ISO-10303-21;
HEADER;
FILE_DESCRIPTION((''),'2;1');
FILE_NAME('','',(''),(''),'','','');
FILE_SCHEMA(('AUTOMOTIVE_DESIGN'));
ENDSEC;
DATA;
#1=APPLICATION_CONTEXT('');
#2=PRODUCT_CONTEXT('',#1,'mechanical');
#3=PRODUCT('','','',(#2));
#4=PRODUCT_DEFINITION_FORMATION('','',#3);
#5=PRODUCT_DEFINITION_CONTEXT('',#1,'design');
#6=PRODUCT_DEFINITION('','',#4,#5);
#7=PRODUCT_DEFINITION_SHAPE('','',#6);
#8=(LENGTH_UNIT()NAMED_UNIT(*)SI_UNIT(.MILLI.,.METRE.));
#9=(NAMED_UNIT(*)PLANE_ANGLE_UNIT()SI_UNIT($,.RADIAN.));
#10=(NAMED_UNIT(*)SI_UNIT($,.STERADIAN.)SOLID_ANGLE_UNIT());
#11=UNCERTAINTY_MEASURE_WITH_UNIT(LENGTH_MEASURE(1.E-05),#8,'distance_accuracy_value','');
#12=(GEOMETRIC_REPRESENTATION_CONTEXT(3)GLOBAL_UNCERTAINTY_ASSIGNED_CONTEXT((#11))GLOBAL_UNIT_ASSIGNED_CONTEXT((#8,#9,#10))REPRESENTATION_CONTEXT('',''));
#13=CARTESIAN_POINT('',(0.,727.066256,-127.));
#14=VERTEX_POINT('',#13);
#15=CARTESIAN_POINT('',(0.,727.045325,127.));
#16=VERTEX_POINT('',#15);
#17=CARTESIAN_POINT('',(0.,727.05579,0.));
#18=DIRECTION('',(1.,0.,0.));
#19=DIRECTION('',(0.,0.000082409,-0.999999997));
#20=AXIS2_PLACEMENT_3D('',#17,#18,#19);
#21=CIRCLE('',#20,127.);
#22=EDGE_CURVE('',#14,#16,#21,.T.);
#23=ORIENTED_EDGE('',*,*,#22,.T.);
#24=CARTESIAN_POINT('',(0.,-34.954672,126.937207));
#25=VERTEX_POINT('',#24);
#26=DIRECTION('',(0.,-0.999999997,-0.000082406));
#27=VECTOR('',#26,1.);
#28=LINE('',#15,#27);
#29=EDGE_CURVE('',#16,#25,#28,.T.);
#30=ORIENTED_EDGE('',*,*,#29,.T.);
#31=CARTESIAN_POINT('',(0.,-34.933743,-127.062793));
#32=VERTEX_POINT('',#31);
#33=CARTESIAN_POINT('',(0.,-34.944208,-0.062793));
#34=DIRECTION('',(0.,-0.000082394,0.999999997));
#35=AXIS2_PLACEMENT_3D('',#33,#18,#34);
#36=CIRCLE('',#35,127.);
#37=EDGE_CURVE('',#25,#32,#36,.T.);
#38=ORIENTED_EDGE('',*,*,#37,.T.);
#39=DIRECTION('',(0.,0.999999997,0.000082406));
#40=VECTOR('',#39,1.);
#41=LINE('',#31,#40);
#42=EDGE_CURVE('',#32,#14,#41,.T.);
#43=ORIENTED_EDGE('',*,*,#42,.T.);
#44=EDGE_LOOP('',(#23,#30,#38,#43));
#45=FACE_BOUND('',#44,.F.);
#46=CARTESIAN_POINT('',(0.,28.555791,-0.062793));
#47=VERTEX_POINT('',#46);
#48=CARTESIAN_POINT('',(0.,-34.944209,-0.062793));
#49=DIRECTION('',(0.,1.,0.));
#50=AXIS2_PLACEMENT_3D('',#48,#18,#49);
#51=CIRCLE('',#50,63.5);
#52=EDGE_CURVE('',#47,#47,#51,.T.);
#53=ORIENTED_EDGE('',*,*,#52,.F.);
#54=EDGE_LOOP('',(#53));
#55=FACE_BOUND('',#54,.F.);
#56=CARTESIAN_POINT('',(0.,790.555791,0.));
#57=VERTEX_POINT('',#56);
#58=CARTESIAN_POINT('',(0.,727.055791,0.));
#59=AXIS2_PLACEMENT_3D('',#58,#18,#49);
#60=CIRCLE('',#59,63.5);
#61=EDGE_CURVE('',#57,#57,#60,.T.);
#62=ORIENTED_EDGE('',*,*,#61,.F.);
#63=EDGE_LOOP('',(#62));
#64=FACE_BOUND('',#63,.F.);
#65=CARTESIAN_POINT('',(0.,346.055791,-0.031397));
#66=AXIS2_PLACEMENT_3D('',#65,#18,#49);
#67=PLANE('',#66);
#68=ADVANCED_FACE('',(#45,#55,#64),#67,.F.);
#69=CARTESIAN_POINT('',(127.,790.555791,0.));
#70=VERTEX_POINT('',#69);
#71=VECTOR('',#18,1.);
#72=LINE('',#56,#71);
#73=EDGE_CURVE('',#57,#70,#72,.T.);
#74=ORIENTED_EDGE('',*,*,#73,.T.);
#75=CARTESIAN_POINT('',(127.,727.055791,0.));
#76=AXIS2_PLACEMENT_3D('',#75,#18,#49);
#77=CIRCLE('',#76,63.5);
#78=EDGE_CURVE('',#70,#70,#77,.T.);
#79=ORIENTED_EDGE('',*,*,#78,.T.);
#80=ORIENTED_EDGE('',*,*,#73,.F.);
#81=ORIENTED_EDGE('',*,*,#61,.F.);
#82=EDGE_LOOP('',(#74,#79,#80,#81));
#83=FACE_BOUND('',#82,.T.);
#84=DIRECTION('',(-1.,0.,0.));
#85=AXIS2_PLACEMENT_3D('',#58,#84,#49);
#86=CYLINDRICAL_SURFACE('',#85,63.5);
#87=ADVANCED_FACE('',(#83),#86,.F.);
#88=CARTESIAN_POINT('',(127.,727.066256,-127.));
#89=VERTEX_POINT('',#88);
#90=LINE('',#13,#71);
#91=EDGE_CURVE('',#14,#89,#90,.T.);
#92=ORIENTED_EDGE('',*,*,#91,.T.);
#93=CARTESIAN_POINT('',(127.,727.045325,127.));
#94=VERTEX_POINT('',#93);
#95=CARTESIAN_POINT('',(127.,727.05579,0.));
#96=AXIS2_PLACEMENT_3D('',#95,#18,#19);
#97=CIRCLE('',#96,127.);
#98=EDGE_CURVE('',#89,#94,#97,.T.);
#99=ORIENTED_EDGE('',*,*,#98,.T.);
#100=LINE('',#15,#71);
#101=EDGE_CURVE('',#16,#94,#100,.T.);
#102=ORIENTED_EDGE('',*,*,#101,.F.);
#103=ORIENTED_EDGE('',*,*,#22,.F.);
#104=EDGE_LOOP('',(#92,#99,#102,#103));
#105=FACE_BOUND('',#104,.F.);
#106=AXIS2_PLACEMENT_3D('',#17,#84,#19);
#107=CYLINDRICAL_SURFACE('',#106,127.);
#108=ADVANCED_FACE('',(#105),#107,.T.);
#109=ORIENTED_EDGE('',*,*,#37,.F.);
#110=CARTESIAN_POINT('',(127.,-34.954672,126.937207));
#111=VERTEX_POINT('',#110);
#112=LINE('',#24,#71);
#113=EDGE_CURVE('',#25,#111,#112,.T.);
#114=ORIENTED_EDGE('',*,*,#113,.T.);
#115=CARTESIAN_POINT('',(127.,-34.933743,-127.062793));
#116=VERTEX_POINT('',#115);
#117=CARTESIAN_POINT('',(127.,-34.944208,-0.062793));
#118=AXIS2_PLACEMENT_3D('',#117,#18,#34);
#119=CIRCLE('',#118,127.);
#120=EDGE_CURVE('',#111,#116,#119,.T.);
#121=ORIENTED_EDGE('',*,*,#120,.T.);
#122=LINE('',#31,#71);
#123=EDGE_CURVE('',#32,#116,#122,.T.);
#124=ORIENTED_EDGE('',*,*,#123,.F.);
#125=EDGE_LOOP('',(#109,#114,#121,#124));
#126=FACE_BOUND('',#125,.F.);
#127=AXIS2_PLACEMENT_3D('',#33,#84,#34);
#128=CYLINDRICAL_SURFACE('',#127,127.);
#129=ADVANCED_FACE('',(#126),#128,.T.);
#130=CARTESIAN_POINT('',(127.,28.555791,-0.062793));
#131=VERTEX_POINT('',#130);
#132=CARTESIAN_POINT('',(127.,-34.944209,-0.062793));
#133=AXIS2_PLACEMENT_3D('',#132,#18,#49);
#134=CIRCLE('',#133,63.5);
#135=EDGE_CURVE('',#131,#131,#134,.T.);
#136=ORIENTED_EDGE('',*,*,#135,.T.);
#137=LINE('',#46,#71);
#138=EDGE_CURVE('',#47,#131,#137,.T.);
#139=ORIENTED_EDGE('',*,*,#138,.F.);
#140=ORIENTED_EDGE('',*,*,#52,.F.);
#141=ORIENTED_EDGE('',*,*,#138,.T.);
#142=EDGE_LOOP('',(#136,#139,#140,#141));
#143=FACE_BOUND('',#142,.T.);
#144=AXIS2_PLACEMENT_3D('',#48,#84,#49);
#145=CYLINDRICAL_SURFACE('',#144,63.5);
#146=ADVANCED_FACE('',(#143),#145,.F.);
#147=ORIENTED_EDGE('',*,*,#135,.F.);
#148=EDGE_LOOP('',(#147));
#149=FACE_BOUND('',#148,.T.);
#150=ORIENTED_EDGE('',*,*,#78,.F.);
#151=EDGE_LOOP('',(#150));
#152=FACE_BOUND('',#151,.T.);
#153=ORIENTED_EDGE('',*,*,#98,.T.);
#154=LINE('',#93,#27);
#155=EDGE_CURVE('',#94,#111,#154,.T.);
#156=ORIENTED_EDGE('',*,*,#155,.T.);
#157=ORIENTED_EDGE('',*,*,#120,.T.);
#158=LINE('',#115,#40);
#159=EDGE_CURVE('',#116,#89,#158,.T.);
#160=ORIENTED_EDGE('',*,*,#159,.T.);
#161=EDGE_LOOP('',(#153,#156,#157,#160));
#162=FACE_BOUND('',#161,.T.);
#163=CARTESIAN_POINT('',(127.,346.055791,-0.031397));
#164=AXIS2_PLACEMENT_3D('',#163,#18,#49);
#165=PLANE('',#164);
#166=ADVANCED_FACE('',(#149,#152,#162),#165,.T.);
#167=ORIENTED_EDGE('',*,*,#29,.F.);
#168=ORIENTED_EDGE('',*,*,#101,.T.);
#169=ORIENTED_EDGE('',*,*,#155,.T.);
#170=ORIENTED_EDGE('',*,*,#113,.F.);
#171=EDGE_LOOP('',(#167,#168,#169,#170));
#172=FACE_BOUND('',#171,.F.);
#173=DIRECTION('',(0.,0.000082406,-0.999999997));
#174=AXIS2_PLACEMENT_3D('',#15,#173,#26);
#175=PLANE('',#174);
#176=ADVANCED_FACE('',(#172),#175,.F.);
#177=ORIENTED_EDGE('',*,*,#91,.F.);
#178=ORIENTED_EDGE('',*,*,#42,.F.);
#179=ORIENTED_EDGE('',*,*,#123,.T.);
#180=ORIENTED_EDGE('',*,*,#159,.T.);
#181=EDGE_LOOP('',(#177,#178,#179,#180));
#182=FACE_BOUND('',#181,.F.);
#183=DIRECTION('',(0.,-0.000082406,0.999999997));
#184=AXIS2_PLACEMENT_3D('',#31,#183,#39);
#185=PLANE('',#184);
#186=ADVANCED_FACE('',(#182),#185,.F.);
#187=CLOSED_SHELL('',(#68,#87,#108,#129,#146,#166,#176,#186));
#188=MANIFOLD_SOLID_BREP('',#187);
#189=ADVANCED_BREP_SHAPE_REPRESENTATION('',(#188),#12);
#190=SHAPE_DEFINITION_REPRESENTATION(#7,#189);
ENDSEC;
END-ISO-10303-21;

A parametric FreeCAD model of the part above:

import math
import FreeCAD as App
import Part
import Sketcher
from FreeCAD import Vector
Q = App.Units.Quantity

doc = App.newDocument("Part")
body = doc.addObject("PartDesign::Body", "Body")

# Sketch on YZ plane
sketch1 = body.newObject("Sketcher::SketchObject", "Sketch")
sketch1.AttachmentSupport = (doc.getObject("YZ_Plane"), [""])
sketch1.MapMode = "FlatFace"
sketch1.addGeometry(Part.LineSegment(Vector(727, 127, 0), Vector(-35, 127, 0)), False)
sketch1.addGeometry(Part.ArcOfCircle(Part.Circle(Vector(-35, 0, 0), Vector(0, 0, 1), 127), math.radians(90), math.radians(270)), False)
sketch1.addGeometry(Part.LineSegment(Vector(-35, -127, 0), Vector(727, -127, 0)), False)
sketch1.addGeometry(Part.ArcOfCircle(Part.Circle(Vector(727, 0, 0), Vector(0, 0, 1), 127), math.radians(-90), math.radians(90)), False)
sketch1.addGeometry(Part.Circle(Vector(-35, 0, 0), Vector(0, 0, 1), 64), False)
sketch1.addGeometry(Part.Circle(Vector(727, 0, 0), Vector(0, 0, 1), 64), False)
sketch1.addConstraint(Sketcher.Constraint("Tangent", 0, 2, 1, 1))
sketch1.addConstraint(Sketcher.Constraint("Tangent", 1, 2, 2, 1))
sketch1.addConstraint(Sketcher.Constraint("Tangent", 2, 2, 3, 1))
sketch1.addConstraint(Sketcher.Constraint("Tangent", 3, 2, 0, 1))
sketch1.addConstraint(Sketcher.Constraint("Coincident", 4, 3, 1, 3))
sketch1.addConstraint(Sketcher.Constraint("Coincident", 5, 3, 3, 3))
sketch1.addConstraint(Sketcher.Constraint("Equal", 1, 3))
sketch1.addConstraint(Sketcher.Constraint("Equal", 4, 5))
sketch1.addConstraint(Sketcher.Constraint("PointOnObject", 3, 3, -1))
sketch1.addConstraint(Sketcher.Constraint("Diameter", 4, Q("5 in")))
sketch1.addConstraint(Sketcher.Constraint("Radius", 1, Q("5 in")))
sketch1.addConstraint(Sketcher.Constraint("Distance", 0, Q("30 in")))
sketch1.addConstraint(Sketcher.Constraint("DistanceX", 1, 3, -1, 1, Q("34.944208 mm")))
sketch1.addConstraint(Sketcher.Constraint("DistanceX", 0, 2, 3, 3, Q("762.010462 mm")))
pad1 = body.newObject("PartDesign::Pad", "Pad")
pad1.Profile = sketch1
pad1.Length = Q("5 in")

doc.recompute()
